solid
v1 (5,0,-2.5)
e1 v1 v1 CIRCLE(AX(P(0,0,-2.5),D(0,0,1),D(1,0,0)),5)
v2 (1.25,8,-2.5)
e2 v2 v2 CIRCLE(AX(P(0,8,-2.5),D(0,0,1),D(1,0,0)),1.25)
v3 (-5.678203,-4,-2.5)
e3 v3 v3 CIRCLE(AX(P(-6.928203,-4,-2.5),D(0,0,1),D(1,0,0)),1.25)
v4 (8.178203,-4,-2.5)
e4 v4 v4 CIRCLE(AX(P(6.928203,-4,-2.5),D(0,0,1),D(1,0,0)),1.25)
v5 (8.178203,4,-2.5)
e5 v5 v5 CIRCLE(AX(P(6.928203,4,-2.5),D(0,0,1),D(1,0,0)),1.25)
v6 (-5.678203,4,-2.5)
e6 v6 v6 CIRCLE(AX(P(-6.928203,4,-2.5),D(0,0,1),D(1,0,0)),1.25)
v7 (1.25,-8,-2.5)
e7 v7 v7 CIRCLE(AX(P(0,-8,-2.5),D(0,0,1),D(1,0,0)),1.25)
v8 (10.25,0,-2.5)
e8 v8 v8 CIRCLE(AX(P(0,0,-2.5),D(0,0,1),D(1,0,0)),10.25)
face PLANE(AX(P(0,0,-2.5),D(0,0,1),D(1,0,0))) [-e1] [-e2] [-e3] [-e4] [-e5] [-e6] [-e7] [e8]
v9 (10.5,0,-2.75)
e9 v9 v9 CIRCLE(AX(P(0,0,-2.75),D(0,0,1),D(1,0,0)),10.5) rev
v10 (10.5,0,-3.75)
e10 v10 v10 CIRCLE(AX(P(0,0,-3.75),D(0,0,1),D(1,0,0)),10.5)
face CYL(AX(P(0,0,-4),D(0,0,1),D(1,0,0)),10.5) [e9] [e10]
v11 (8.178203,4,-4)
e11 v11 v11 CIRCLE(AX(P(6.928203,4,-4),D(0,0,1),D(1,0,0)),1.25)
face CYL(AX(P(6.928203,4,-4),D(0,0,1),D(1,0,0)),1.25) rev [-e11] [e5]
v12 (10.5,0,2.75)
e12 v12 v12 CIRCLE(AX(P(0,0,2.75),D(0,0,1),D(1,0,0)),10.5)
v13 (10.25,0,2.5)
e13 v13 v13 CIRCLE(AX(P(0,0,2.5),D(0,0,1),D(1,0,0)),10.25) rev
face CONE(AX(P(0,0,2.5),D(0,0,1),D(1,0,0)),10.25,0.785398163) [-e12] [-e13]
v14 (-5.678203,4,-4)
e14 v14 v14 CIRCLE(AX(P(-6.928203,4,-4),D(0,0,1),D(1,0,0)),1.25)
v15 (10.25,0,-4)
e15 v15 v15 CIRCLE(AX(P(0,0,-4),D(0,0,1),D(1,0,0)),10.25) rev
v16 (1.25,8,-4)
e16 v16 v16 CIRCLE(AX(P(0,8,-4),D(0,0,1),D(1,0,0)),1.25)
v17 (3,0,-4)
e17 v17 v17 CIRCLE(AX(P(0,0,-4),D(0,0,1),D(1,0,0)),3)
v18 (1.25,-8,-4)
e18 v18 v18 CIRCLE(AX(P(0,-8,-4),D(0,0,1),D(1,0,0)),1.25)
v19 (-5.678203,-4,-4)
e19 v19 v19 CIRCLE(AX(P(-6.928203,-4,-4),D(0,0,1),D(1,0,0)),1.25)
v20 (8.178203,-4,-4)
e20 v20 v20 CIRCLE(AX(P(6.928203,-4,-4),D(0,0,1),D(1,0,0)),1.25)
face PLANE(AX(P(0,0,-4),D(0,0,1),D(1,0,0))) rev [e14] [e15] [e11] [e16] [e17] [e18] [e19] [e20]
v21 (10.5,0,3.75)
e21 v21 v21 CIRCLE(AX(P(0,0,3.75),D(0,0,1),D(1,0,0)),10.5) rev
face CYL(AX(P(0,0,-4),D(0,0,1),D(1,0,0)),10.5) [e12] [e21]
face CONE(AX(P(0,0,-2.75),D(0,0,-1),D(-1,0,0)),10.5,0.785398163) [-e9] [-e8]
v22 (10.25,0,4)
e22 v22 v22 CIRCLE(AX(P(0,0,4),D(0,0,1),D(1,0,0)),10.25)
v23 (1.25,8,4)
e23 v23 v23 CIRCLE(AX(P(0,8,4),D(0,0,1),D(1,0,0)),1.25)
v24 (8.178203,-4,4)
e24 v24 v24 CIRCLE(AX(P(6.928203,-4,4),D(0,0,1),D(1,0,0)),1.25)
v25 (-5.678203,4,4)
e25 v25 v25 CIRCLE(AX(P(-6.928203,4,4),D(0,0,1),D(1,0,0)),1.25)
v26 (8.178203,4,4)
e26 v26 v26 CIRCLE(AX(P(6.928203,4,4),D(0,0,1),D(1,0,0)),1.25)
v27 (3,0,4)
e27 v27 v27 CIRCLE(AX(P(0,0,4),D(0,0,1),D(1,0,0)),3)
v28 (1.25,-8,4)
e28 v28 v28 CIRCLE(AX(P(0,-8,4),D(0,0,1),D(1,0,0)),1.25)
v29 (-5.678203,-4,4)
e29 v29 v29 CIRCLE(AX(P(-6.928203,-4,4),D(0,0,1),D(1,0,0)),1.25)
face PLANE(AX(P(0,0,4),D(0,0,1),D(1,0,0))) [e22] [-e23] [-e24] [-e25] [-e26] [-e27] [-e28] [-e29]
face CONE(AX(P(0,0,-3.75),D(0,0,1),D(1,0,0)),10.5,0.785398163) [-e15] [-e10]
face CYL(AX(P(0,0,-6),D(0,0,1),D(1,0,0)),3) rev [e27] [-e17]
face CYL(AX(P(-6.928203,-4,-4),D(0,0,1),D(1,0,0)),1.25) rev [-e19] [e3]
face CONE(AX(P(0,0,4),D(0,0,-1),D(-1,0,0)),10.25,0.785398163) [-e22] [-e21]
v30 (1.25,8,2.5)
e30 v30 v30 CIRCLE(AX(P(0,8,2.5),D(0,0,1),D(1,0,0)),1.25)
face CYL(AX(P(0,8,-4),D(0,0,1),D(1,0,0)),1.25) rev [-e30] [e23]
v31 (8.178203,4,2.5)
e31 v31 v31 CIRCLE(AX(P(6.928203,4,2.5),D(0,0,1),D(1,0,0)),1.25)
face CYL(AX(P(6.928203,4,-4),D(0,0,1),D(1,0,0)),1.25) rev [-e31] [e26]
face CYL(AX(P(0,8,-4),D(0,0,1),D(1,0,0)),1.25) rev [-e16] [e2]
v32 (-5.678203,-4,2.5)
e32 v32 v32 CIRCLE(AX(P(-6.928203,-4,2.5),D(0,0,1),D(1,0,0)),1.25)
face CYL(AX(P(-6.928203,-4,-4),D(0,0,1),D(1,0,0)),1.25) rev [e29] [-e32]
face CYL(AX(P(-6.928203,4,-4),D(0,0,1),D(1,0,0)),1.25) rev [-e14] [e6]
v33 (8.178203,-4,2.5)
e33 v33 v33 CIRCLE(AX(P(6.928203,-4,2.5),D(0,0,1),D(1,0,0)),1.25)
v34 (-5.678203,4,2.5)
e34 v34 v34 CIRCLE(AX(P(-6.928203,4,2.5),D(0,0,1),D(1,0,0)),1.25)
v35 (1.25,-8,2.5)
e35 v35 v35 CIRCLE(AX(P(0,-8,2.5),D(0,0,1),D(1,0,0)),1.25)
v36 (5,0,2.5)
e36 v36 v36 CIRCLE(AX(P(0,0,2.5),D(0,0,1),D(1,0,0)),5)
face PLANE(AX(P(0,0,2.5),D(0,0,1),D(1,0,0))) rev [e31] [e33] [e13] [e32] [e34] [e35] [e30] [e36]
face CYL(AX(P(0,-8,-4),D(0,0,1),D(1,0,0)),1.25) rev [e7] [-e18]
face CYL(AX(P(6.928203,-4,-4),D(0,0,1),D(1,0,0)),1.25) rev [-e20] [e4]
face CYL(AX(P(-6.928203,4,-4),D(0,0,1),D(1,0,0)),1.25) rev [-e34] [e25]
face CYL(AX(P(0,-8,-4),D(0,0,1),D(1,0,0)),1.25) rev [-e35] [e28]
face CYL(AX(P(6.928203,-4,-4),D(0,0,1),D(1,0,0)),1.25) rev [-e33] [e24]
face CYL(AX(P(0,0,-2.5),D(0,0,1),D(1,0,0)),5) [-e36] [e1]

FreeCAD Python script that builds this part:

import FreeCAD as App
import Part
import Sketcher
from FreeCAD import Vector
Q = App.Units.Quantity


def edges_at(feature, points):
    """Names of the edges that pass closest to the given points."""
    edges = feature.Shape.Edges
    near = lambda p: min(range(len(edges)), key=lambda i: edges[i].distToShape(Part.Vertex(*p))[0])
    return sorted({f"Edge{near(p) + 1}" for p in points})


def add_polygon(sketch, points):
    """Adds a closed chain of lines whose ends are joined by coincident constraints."""
    first, n = sketch.GeometryCount, len(points)
    for a, b in zip(points, points[1:] + points[:1]):
        sketch.addGeometry(Part.LineSegment(App.Vector(*a, 0), App.Vector(*b, 0)), False)
    for i in range(n):
        sketch.addConstraint(Sketcher.Constraint("Coincident", first + i, 2, first + (i + 1) % n, 1))

doc = App.newDocument("Part")
body = doc.addObject("PartDesign::Body", "Body")

sketch1 = doc.addObject("Sketcher::SketchObject", "Sketch")
body.addObject(sketch1)
sketch1.AttachmentSupport = (doc.XY_Plane, [""])
sketch1.MapMode = "FlatFace"
sketch1.addGeometry(Part.Circle(Vector(0, 0, 0), Vector(0, 0, 1), 10), False)
sketch1.addConstraint(Sketcher.Constraint("Coincident", 0, 3, -1, 1))
sketch1.addConstraint(Sketcher.Constraint("Diameter", 0, Q("21 mm")))
pad1 = doc.addObject("PartDesign::Pad", "Pad")
body.addObject(pad1)
pad1.Profile = sketch1
pad1.Type = "TwoLengths"
pad1.Length = 4
pad1.Length2 = 4

sketch2 = doc.addObject("Sketcher::SketchObject", "Sketch001")
body.addObject(sketch2)
sketch2.AttachmentSupport = (doc.XY_Plane, [""])
sketch2.MapMode = "FlatFace"
sketch2.AttachmentOffset = App.Placement(Vector(0, 0, 4), App.Rotation())
sketch2.addGeometry(Part.Circle(Vector(0, 0, 0), Vector(0, 0, 1), 3), False)
sketch2.addConstraint(Sketcher.Constraint("Coincident", 0, 3, -1, 1))
sketch2.addConstraint(Sketcher.Constraint("Diameter", 0, Q("6 mm")))
pocket1 = doc.addObject("PartDesign::Pocket", "Pocket")
body.addObject(pocket1)
pocket1.Profile = sketch2
pocket1.Length = 10
doc.recompute()

chamfer = doc.addObject("PartDesign::Chamfer", "Chamfer")
body.addObject(chamfer)
chamfer.Base = (pocket1, edges_at(pocket1, [(-10.5, 0, 4)]))
chamfer.Size = 0.25
doc.recompute()

chamfer2 = doc.addObject("PartDesign::Chamfer", "Chamfer001")
body.addObject(chamfer2)
chamfer2.Base = (chamfer, edges_at(chamfer, [(-10.5, 0, -4)]))
chamfer2.Size = 0.25

sketch3 = doc.addObject("Sketcher::SketchObject", "Sketch002")
body.addObject(sketch3)
sketch3.AttachmentSupport = (doc.XY_Plane, [""])
sketch3.MapMode = "FlatFace"
sketch3.AttachmentOffset = App.Placement(Vector(0, 0, 2.5), App.Rotation())
add_polygon(sketch3, [(-15, 15), (-15, -15), (15, -15), (15, 15)])
sketch3.addGeometry(Part.Circle(Vector(0, 0, 0), Vector(0, 0, 1), 5), False)
sketch3.addConstraint(Sketcher.Constraint("Vertical", 0))
sketch3.addConstraint(Sketcher.Constraint("Horizontal", 1))
sketch3.addConstraint(Sketcher.Constraint("Vertical", 2))
sketch3.addConstraint(Sketcher.Constraint("Horizontal", 3))
sketch3.addConstraint(Sketcher.Constraint("Coincident", 4, 3, -1, 1))
sketch3.addConstraint(Sketcher.Constraint("Symmetric", 0, 2, 2, 2, -1, 1))
sketch3.addConstraint(Sketcher.Constraint("Equal", 3, 0))
sketch3.addConstraint(Sketcher.Constraint("Diameter", 4, Q("10 mm")))
sketch3.addConstraint(Sketcher.Constraint("DistanceX", 1, 1, 1, 2, Q("29.152 mm")))
pocket2 = doc.addObject("PartDesign::Pocket", "Pocket001")
body.addObject(pocket2)
pocket2.Profile = sketch3
pocket2.Length = 5
doc.recompute()

chamfer3 = doc.addObject("PartDesign::Chamfer", "Chamfer002")
body.addObject(chamfer3)
chamfer3.Base = (pocket2, edges_at(pocket2, [(-10.5, 0, 2.5), (-10.5, 0, -2.5)]))
chamfer3.Size = 0.25

sketch4 = doc.addObject("Sketcher::SketchObject", "Sketch003")
body.addObject(sketch4)
sketch4.AttachmentSupport = (doc.XY_Plane, [""])
sketch4.MapMode = "FlatFace"
sketch4.AttachmentOffset = App.Placement(Vector(0, 0, 4), App.Rotation())
sketch4.addGeometry(Part.Circle(Vector(0, 8, 0), Vector(0, 0, 1), 1.2), False)
sketch4.addGeometry(Part.Circle(Vector(6.9, 4, 0), Vector(0, 0, 1), 1.2), False)
sketch4.addGeometry(Part.Circle(Vector(6.9, -4, 0), Vector(0, 0, 1), 1.2), False)
sketch4.addGeometry(Part.Circle(Vector(0, -8, 0), Vector(0, 0, 1), 1.2), False)
sketch4.addGeometry(Part.Circle(Vector(-6.9, -4, 0), Vector(0, 0, 1), 1.2), False)
sketch4.addGeometry(Part.Circle(Vector(-6.9, 4, 0), Vector(0, 0, 1), 1.2), False)
sketch4.addConstraint(Sketcher.Constraint("Equal", 0, 1))
sketch4.addConstraint(Sketcher.Constraint("Equal", 1, 2))
sketch4.addConstraint(Sketcher.Constraint("Equal", 2, 3))
sketch4.addConstraint(Sketcher.Constraint("Equal", 3, 4))
sketch4.addConstraint(Sketcher.Constraint("Equal", 4, 5))
sketch4.addConstraint(Sketcher.Constraint("Symmetric", 0, 3, 3, 3, -1, 1))
sketch4.addConstraint(Sketcher.Constraint("Symmetric", 1, 3, 4, 3, -1, 1))
sketch4.addConstraint(Sketcher.Constraint("Symmetric", 2, 3, 5, 3, -1, 1))
sketch4.addConstraint(Sketcher.Constraint("Symmetric", 2, 3, 4, 3, -2))
sketch4.addConstraint(Sketcher.Constraint("PointOnObject", 0, 3, -2))
sketch4.addConstraint(Sketcher.Constraint("Diameter", 0, Q("2.5 mm")))
sketch4.addConstraint(Sketcher.Constraint("DistanceY", -1, 1, 0, 3, Q("8 mm")))
sketch4.addConstraint(Sketcher.Constraint("DistanceY", -1, 1, 1, 3, Q("4 mm")))
sketch4.addConstraint(Sketcher.Constraint("DistanceX", -1, 1, 1, 3, Q("6.928203 mm")))
pocket3 = doc.addObject("PartDesign::Pocket", "Pocket002")
body.addObject(pocket3)
pocket3.Profile = sketch4
pocket3.Type = "ThroughAll"
pocket3.Midplane = True

doc.recompute()
